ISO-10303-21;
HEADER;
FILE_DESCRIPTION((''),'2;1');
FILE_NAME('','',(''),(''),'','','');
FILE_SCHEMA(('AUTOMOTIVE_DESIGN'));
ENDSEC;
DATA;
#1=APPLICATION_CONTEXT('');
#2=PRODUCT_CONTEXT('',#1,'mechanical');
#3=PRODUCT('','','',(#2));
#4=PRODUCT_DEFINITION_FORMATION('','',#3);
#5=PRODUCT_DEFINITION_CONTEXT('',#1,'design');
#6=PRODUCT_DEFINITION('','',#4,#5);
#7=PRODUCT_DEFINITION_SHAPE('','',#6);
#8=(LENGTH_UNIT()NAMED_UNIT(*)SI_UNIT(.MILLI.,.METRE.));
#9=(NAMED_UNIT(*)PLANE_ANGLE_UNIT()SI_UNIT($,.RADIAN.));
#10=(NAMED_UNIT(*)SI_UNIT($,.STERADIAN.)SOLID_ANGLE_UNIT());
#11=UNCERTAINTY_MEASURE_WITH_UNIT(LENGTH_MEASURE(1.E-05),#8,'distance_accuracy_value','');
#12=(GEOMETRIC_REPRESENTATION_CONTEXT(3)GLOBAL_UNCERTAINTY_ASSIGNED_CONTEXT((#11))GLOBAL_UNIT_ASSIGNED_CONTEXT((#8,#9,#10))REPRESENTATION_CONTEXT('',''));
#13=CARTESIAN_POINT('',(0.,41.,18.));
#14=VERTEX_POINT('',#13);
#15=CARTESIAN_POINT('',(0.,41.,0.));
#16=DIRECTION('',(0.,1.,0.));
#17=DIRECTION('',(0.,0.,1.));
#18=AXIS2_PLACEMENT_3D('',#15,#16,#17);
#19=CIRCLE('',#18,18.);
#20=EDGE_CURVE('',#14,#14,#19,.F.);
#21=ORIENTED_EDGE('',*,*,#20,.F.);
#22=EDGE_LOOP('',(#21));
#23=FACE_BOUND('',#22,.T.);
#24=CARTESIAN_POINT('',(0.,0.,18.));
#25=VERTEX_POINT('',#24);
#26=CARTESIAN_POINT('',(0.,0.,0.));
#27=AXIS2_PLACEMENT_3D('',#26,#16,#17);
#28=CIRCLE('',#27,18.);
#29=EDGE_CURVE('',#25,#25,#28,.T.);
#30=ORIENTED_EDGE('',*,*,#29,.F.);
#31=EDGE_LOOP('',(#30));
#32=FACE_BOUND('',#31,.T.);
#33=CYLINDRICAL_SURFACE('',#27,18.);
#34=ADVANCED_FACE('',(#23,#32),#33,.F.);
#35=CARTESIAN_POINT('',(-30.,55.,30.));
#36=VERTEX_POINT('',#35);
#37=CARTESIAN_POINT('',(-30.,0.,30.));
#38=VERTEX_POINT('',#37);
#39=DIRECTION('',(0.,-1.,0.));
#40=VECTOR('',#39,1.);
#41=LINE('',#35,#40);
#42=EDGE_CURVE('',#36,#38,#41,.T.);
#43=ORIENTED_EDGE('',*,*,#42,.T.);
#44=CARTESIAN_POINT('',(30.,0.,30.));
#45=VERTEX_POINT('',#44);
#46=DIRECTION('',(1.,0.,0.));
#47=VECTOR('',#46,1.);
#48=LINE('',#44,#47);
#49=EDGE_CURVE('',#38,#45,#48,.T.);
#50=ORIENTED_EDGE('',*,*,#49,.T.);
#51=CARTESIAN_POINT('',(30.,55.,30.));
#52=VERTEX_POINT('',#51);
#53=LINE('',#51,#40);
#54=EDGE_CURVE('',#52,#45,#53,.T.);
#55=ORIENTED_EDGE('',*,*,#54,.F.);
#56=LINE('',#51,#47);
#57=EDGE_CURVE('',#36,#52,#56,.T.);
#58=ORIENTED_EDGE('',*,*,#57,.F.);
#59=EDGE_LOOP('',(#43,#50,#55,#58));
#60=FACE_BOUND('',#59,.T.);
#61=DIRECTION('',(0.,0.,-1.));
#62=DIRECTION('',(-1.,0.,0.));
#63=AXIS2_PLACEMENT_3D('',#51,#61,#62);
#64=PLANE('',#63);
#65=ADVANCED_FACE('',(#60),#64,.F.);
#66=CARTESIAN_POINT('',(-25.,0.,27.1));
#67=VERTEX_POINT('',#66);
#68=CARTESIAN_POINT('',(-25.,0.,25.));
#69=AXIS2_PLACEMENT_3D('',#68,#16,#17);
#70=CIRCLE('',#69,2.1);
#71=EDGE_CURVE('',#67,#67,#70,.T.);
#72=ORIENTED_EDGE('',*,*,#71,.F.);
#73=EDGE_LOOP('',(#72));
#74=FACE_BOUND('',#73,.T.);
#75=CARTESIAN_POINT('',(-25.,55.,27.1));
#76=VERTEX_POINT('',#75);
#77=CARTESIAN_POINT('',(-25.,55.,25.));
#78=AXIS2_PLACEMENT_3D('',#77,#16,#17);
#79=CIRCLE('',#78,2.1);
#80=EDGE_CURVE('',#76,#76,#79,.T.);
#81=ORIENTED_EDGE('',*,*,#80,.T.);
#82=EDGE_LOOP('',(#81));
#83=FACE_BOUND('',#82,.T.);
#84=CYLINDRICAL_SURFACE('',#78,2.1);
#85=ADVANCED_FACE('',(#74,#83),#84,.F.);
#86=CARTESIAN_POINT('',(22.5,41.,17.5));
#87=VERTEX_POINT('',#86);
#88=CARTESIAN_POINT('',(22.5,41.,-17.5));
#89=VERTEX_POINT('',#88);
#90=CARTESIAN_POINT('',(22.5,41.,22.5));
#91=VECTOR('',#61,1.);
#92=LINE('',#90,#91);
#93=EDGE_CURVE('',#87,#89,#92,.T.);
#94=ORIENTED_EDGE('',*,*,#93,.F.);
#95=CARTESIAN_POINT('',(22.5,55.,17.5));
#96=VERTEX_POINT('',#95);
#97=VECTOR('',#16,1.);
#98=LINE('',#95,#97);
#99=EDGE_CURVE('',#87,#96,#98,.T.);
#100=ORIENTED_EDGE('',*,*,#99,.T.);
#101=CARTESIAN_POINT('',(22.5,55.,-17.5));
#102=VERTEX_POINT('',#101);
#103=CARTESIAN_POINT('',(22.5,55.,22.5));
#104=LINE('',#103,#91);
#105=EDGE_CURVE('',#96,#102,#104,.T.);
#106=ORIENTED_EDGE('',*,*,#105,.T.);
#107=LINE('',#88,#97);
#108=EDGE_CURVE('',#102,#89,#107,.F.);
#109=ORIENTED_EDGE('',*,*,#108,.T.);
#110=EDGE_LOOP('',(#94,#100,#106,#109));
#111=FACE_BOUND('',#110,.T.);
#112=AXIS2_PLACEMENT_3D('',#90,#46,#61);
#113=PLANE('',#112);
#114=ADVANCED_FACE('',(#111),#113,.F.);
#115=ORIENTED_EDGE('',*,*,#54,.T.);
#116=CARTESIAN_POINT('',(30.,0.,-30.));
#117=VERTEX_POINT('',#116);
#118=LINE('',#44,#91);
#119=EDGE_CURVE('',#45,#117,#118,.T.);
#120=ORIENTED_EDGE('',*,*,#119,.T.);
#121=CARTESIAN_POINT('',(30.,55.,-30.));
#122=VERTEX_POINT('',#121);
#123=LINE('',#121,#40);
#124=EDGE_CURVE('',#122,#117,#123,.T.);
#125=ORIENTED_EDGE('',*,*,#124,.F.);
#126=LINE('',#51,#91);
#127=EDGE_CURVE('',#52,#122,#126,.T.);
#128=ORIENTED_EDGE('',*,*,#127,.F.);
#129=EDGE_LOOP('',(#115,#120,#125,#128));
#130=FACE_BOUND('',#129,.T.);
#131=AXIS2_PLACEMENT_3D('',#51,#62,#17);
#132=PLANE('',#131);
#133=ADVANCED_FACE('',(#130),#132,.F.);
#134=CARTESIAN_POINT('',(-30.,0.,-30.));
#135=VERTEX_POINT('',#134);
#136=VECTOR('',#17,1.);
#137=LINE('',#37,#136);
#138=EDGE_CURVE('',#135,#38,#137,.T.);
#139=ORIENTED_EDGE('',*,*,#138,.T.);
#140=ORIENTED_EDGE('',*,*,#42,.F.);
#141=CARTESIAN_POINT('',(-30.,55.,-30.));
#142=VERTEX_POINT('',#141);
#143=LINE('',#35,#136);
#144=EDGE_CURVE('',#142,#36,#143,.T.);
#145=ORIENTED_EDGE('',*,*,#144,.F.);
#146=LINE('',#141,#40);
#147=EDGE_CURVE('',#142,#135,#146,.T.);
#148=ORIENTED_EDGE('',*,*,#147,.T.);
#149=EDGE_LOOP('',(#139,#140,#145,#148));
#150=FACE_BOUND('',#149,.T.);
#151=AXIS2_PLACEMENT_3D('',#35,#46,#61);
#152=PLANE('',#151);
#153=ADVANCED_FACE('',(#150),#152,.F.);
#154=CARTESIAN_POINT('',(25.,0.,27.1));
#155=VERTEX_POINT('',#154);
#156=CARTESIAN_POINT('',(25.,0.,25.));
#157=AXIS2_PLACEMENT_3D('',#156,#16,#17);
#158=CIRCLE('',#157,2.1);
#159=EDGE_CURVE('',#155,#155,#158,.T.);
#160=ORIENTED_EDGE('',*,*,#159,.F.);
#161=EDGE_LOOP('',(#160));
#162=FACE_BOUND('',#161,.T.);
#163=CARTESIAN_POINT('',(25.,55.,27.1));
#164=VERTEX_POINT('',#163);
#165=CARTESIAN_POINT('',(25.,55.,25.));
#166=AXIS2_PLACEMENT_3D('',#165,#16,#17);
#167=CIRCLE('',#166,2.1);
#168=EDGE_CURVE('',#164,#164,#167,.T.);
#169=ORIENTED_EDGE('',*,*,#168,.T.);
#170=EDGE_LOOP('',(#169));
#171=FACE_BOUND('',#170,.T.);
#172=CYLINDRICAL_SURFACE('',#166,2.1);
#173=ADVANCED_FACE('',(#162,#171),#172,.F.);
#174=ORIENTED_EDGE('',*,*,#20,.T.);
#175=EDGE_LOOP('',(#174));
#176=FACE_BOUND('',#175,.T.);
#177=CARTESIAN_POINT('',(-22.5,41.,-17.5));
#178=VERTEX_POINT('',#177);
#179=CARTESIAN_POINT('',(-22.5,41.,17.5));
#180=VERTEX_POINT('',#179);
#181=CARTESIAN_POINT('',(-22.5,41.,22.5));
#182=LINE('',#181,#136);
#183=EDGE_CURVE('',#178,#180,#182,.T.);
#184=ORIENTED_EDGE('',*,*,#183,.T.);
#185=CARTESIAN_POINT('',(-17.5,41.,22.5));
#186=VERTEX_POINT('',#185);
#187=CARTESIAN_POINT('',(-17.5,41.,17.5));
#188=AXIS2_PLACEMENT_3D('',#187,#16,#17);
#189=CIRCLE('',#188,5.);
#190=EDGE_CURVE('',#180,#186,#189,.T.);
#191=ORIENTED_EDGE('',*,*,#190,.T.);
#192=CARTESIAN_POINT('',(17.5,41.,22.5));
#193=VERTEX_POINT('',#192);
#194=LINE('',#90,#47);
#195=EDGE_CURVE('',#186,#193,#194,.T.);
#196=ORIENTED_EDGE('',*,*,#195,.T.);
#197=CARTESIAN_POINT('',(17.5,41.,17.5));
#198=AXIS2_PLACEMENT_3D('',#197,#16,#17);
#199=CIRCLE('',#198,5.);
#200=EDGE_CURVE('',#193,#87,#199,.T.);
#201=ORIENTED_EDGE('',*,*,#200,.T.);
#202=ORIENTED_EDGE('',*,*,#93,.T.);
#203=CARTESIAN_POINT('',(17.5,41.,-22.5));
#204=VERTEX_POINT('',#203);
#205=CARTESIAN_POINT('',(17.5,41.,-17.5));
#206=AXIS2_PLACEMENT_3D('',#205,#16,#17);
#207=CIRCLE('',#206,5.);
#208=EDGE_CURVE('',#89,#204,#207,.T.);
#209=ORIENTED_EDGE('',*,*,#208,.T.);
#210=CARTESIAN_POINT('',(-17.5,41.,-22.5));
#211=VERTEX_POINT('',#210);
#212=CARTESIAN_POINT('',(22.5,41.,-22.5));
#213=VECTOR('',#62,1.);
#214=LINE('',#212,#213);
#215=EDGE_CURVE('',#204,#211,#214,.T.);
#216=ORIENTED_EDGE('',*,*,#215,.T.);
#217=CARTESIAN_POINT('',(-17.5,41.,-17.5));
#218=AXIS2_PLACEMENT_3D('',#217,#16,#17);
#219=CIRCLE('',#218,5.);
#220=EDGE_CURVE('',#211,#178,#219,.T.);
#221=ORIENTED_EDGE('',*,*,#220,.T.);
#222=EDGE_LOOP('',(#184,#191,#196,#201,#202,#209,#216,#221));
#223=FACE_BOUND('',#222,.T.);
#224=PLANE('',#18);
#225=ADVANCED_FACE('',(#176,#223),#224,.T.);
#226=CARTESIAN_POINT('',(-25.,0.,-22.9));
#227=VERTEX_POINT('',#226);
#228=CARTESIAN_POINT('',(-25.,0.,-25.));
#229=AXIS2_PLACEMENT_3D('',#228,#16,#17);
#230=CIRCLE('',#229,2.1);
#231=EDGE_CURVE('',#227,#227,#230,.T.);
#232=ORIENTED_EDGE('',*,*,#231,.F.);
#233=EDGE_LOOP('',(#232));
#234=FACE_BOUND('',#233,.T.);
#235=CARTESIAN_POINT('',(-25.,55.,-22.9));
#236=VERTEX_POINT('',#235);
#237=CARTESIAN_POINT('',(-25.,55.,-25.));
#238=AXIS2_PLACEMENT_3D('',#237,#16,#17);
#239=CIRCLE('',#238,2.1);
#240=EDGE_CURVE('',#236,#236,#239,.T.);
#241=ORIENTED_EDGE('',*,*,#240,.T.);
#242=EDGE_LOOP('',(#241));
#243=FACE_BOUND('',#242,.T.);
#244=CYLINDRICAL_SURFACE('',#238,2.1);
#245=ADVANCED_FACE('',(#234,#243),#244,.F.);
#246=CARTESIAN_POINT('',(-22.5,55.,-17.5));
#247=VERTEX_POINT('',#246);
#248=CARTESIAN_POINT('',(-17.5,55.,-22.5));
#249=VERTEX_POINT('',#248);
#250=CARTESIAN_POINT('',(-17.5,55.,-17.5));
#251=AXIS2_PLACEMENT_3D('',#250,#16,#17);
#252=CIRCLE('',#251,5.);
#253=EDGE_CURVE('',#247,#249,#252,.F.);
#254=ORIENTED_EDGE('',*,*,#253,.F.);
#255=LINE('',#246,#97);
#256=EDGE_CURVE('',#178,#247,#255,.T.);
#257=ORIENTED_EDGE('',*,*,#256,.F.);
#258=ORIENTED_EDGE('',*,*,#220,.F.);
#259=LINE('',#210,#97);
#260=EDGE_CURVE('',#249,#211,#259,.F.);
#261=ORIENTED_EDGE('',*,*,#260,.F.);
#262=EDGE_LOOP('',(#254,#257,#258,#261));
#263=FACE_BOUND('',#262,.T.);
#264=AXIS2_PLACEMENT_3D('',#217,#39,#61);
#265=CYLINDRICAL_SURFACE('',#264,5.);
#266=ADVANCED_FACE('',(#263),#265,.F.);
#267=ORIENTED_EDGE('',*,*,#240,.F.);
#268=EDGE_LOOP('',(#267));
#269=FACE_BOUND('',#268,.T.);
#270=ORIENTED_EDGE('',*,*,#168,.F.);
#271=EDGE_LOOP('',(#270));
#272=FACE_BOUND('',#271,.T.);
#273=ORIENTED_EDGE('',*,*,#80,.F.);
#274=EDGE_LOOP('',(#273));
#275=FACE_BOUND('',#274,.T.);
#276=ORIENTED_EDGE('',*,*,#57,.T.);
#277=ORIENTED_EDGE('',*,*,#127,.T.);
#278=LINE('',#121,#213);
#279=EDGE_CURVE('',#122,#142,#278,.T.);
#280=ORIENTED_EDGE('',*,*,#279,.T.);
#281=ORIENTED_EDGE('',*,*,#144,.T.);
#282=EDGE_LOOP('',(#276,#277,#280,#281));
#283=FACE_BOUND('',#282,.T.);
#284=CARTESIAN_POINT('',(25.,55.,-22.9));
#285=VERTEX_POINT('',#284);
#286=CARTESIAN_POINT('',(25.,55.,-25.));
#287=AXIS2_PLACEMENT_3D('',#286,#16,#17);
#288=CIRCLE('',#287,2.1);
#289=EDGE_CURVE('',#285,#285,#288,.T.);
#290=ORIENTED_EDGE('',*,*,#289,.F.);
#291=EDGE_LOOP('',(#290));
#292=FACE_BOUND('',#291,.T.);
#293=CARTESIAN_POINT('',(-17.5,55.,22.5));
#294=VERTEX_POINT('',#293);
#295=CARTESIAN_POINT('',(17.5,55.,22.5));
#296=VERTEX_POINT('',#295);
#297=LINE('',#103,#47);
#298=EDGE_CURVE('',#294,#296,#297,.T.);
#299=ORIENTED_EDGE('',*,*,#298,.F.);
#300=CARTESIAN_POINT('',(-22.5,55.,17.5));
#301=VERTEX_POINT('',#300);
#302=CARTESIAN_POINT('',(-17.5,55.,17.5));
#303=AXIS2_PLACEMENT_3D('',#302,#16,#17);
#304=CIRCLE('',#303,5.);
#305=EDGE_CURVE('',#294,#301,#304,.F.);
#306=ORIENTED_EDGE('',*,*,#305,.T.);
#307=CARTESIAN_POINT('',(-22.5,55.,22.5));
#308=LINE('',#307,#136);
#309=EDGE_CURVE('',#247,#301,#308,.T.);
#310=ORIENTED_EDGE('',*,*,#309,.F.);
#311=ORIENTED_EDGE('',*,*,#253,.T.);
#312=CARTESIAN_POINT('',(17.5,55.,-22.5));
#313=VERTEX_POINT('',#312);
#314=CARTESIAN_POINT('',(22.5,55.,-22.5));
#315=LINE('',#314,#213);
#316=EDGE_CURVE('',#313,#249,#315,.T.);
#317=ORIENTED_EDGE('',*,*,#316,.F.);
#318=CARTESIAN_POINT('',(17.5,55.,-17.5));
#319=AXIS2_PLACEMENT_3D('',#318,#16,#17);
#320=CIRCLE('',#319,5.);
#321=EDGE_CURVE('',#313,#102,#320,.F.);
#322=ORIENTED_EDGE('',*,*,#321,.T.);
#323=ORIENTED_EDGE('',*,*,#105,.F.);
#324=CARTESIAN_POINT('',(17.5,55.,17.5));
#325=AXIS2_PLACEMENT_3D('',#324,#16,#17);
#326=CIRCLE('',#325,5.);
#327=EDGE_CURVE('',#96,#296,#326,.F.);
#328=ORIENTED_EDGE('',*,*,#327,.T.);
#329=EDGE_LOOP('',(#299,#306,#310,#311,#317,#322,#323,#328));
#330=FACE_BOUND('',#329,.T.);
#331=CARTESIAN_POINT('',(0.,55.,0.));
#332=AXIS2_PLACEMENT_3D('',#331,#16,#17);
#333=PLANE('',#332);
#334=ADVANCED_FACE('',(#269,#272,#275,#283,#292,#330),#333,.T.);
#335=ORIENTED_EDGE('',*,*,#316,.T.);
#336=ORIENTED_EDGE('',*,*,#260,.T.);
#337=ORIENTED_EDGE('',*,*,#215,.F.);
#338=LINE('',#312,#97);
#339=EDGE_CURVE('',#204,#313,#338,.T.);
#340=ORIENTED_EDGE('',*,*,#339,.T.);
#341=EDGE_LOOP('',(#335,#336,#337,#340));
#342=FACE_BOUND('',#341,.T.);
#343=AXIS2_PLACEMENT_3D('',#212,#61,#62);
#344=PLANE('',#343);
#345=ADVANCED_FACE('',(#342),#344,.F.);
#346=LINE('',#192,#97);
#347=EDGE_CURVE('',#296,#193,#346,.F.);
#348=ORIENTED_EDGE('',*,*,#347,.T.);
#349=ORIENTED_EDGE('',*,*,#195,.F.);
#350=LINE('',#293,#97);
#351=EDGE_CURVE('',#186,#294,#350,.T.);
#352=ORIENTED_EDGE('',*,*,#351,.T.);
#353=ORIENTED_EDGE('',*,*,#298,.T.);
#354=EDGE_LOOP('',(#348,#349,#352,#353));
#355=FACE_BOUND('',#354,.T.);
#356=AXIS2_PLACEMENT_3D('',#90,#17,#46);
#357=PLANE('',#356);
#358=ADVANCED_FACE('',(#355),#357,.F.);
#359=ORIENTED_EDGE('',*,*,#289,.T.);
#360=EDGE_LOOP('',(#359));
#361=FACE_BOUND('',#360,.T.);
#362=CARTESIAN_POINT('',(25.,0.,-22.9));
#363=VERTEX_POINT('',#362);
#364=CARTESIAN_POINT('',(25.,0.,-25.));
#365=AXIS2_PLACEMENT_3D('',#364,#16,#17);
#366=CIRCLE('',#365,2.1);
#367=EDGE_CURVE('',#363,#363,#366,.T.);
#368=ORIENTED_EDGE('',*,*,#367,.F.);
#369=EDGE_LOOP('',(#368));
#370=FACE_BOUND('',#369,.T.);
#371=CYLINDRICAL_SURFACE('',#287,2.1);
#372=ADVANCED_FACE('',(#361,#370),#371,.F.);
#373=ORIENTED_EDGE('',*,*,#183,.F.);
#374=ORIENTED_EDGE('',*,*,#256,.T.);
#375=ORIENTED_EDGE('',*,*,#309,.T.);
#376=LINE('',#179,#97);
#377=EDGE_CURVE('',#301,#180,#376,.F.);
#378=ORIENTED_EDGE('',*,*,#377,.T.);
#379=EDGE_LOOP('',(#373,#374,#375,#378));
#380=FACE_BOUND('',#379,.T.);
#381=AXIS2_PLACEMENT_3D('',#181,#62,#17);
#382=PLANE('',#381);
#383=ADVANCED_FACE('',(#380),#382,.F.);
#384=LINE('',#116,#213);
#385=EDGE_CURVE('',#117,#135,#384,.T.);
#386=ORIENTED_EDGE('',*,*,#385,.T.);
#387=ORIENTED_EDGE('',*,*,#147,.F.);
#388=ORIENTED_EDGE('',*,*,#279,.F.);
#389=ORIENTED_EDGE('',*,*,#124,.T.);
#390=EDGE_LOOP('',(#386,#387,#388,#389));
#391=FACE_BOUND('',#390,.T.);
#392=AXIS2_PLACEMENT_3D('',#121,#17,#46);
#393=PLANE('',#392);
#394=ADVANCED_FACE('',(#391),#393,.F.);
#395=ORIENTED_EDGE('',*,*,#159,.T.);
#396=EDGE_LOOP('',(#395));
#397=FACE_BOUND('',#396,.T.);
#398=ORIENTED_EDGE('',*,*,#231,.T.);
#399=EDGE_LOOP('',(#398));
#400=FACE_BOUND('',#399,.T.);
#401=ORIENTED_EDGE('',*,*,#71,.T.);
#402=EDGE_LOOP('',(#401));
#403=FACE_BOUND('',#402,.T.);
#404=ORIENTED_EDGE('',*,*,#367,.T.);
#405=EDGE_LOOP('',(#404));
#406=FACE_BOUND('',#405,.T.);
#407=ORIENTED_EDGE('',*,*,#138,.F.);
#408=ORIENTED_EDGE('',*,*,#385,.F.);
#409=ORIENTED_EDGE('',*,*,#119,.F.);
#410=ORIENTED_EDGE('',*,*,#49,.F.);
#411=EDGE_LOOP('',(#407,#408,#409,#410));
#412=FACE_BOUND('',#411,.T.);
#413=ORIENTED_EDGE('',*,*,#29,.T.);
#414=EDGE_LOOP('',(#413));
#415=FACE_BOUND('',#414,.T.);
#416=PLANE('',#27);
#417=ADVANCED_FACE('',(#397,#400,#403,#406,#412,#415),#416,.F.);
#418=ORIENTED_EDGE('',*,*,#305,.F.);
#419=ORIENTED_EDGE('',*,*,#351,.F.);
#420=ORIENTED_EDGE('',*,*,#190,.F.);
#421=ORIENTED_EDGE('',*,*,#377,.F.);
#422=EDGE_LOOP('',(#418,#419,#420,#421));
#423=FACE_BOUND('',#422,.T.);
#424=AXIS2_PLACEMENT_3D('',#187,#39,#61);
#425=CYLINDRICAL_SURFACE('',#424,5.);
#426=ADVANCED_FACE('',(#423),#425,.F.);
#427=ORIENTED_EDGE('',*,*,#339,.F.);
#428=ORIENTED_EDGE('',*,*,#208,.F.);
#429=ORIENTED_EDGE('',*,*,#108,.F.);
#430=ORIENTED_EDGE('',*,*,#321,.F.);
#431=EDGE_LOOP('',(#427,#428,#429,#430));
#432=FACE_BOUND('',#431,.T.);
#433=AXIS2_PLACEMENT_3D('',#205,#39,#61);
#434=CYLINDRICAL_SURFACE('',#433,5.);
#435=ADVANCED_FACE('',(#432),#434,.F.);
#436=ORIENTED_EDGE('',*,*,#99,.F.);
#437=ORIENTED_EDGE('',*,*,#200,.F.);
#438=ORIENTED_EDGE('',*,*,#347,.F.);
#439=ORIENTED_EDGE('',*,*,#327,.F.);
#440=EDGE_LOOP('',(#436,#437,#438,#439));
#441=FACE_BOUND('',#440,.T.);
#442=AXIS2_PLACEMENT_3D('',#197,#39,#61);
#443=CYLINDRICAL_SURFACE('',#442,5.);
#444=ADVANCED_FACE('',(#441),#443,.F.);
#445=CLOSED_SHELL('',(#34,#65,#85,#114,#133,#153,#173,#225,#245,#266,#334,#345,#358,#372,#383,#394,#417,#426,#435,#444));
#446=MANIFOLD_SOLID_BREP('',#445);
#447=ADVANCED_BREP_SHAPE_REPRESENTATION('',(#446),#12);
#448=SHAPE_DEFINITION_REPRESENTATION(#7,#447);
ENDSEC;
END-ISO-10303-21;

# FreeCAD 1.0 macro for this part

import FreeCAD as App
import Part
import Sketcher
from FreeCAD import Vector
Q = App.Units.Quantity


def edges_at(feature, points):
    """Names of the edges that pass closest to the given points."""
    edges = feature.Shape.Edges
    near = lambda p: min(range(len(edges)), key=lambda i: edges[i].distToShape(Part.Vertex(*p))[0])
    return sorted({f"Edge{near(p) + 1}" for p in points})

doc = App.newDocument("Part")
params = doc.addObject("Spreadsheet::Sheet", "Params")
for row, (alias, value) in enumerate([
    ("sketch1_width", "60 mm"),
    ("pad1_length", "55 mm"),
    ("sketch2_diameter", "36 mm"),
    ("sketch3_diameter", "4.2 mm"),
    ("hole_diameter", "4.2 mm"),
    ("sketch4_width", "45 mm"),
    ("pocket2_length", "14 mm"),
    ("fillet_radius", "5 mm"),
], start=1):
    params.set(f"A{row}", alias)
    params.set(f"B{row}", "=" + value)
    params.setAlias(f"B{row}", alias)

body = doc.addObject("PartDesign::Body", "Body")

sketch1 = body.newObject("Sketcher::SketchObject", "Sketch")
sketch1.AttachmentSupport = (doc.getObject("XZ_Plane"), [""])
sketch1.MapMode = "FlatFace"
sketch1.addGeometry([
    Part.LineSegment(Vector(-30, -30, 0), Vector(-30, 30, 0)),
    Part.LineSegment(Vector(-30, 30, 0), Vector(30, 30, 0)),
    Part.LineSegment(Vector(30, 30, 0), Vector(30, -30, 0)),
    Part.LineSegment(Vector(30, -30, 0), Vector(-30, -30, 0)),
], False)
sketch1.addConstraint([
    Sketcher.Constraint("Coincident", 0, 2, 1, 1),
    Sketcher.Constraint("Coincident", 1, 2, 2, 1),
    Sketcher.Constraint("Coincident", 2, 2, 3, 1),
    Sketcher.Constraint("Coincident", 3, 2, 0, 1),
    Sketcher.Constraint("Vertical", 0),
    Sketcher.Constraint("Horizontal", 1),
    Sketcher.Constraint("Vertical", 2),
    Sketcher.Constraint("Horizontal", 3),
    Sketcher.Constraint("Symmetric", 0, 2, 2, 2, -1, 1),
    Sketcher.Constraint("Equal", 3, 0),
    Sketcher.Constraint("DistanceX", 1, 1, 1, 2, Q("60 mm")),
])
sketch1.setExpression("Constraints[10]", "Params.sketch1_width")
pad1 = body.newObject("PartDesign::Pad", "Pad")
pad1.Profile = sketch1
pad1.setExpression("Length", "Params.pad1_length")
pad1.Reversed = True

sketch2 = body.newObject("Sketcher::SketchObject", "Sketch001")
sketch2.AttachmentSupport = (doc.getObject("XZ_Plane"), [""])
sketch2.MapMode = "FlatFace"
sketch2.AttachmentOffset = App.Placement(Vector(0, 0, -55), App.Rotation())
sketch2.addGeometry(Part.Circle(Vector(0, 0, 0), Vector(0, 0, 1), 18), False)
sketch2.addConstraint([
    Sketcher.Constraint("Coincident", 0, 3, -1, 1),
    Sketcher.Constraint("Diameter", 0, Q("36 mm")),
])
sketch2.setExpression("Constraints[1]", "Params.sketch2_diameter")
pocket1 = body.newObject("PartDesign::Pocket", "Pocket")
pocket1.Profile = sketch2
pocket1.Type = "ThroughAll"
pocket1.Reversed = True

sketch3 = body.newObject("Sketcher::SketchObject", "Sketch002")
sketch3.AttachmentSupport = (doc.getObject("XZ_Plane"), [""])
sketch3.MapMode = "FlatFace"
sketch3.AttachmentOffset = App.Placement(Vector(0, 0, -55), App.Rotation())
sketch3.addGeometry([
    Part.Circle(Vector(-25, 25, 0), Vector(0, 0, 1), 2.1),
    Part.Circle(Vector(-25, -25, 0), Vector(0, 0, 1), 2.1),
    Part.Circle(Vector(25, -25, 0), Vector(0, 0, 1), 2.1),
    Part.Circle(Vector(25, 25, 0), Vector(0, 0, 1), 2.1),
    Part.Circle(Vector(0, 0, 0), Vector(0, 0, 1), 2.1),
], False)
sketch3.addConstraint([
    Sketcher.Constraint("Coincident", 4, 3, -1, 1),
    Sketcher.Constraint("Equal", 0, 1),
    Sketcher.Constraint("Equal", 1, 2),
    Sketcher.Constraint("Equal", 2, 3),
    Sketcher.Constraint("Equal", 3, 4),
    Sketcher.Constraint("Symmetric", 0, 3, 2, 3, -1, 1),
    Sketcher.Constraint("Symmetric", 1, 3, 3, 3, -1, 1),
    Sketcher.Constraint("Symmetric", 1, 3, 2, 3, -2),
    Sketcher.Constraint("Diameter", 0, Q("4.2 mm")),
    Sketcher.Constraint("DistanceX", 0, 3, -1, 1, Q("25 mm")),
    Sketcher.Constraint("DistanceY", -1, 1, 0, 3, Q("25 mm")),
])
sketch3.setExpression("Constraints[8]", "Params.sketch3_diameter")
doc.recompute()
hole = body.newObject("PartDesign::Hole", "Hole")
hole.Profile = sketch3
hole.ThreadType = "None"
hole.setExpression("Diameter", "Params.hole_diameter")
hole.DepthType = "ThroughAll"
hole.Reversed = True

sketch4 = body.newObject("Sketcher::SketchObject", "Sketch003")
sketch4.AttachmentSupport = (doc.getObject("XZ_Plane"), [""])
sketch4.MapMode = "FlatFace"
sketch4.AttachmentOffset = App.Placement(Vector(0, 0, -55), App.Rotation())
sketch4.addGeometry([
    Part.LineSegment(Vector(-22.5, -22.5, 0), Vector(-22.5, 22.5, 0)),
    Part.LineSegment(Vector(-22.5, 22.5, 0), Vector(22.5, 22.5, 0)),
    Part.LineSegment(Vector(22.5, 22.5, 0), Vector(22.5, -22.5, 0)),
    Part.LineSegment(Vector(22.5, -22.5, 0), Vector(-22.5, -22.5, 0)),
], False)
sketch4.addConstraint([
    Sketcher.Constraint("Coincident", 0, 2, 1, 1),
    Sketcher.Constraint("Coincident", 1, 2, 2, 1),
    Sketcher.Constraint("Coincident", 2, 2, 3, 1),
    Sketcher.Constraint("Coincident", 3, 2, 0, 1),
    Sketcher.Constraint("Vertical", 0),
    Sketcher.Constraint("Horizontal", 1),
    Sketcher.Constraint("Vertical", 2),
    Sketcher.Constraint("Horizontal", 3),
    Sketcher.Constraint("Symmetric", 0, 2, 2, 2, -1, 1),
    Sketcher.Constraint("Equal", 3, 0),
    Sketcher.Constraint("DistanceX", 1, 1, 1, 2, Q("45 mm")),
])
sketch4.setExpression("Constraints[10]", "Params.sketch4_width")
pocket2 = body.newObject("PartDesign::Pocket", "Pocket001")
pocket2.Profile = sketch4
pocket2.setExpression("Length", "Params.pocket2_length")
pocket2.Reversed = True
doc.recompute()

fillet = body.newObject("PartDesign::Fillet", "Fillet")
fillet.Base = (pocket2, edges_at(pocket2, [
    (-22.5, 48, 22.5),
    (-22.5, 48, -22.5),
    (22.5, 48, -22.5),
    (22.5, 48, 22.5),
]))
fillet.setExpression("Radius", "Params.fillet_radius")

doc.recompute()
